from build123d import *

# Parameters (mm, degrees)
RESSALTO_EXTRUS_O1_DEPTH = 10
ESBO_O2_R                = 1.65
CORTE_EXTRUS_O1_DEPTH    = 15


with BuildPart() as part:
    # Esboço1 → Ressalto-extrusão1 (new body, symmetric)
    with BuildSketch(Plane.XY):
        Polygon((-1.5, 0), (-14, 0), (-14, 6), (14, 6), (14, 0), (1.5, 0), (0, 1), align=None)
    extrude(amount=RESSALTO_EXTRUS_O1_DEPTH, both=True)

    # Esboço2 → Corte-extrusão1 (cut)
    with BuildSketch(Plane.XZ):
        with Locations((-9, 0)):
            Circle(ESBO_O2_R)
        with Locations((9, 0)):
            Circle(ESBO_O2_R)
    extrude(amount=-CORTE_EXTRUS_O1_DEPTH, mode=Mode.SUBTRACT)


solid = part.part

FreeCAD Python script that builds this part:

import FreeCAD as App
import Part
import Sketcher

V = App.Vector
Q = App.Units.Quantity

doc = App.newDocument("Part")
body = doc.addObject("PartDesign::Body", "Body")

sketch1 = body.newObject("Sketcher::SketchObject", "Sketch")
sketch1.AttachmentSupport = (doc.getObject("XY_Plane"), [""])
sketch1.MapMode = "FlatFace"
sketch1.addGeometry([
    Part.LineSegment(V(-14, 0, 0), V(-1.5, 0, 0)),
    Part.LineSegment(V(-1.5, 0, 0), V(0, 1, 0)),
    Part.LineSegment(V(0, 1, 0), V(1.5, 0, 0)),
    Part.LineSegment(V(1.5, 0, 0), V(14, 0, 0)),
    Part.LineSegment(V(14, 0, 0), V(14, 6, 0)),
    Part.LineSegment(V(14, 6, 0), V(-14, 6, 0)),
    Part.LineSegment(V(-14, 6, 0), V(-14, 0, 0)),
], False)
sketch1.addConstraint([
    Sketcher.Constraint("Coincident", 0, 2, 1, 1),
    Sketcher.Constraint("Coincident", 1, 2, 2, 1),
    Sketcher.Constraint("Coincident", 2, 2, 3, 1),
    Sketcher.Constraint("Coincident", 3, 2, 4, 1),
    Sketcher.Constraint("Coincident", 4, 2, 5, 1),
    Sketcher.Constraint("Coincident", 5, 2, 6, 1),
    Sketcher.Constraint("Coincident", 6, 2, 0, 1),
    Sketcher.Constraint("Horizontal", 0),
    Sketcher.Constraint("Horizontal", 3),
    Sketcher.Constraint("Vertical", 4),
    Sketcher.Constraint("Horizontal", 5),
    Sketcher.Constraint("Vertical", 6),
    Sketcher.Constraint("Symmetric", 0, 2, 2, 2, -1, 1),
    Sketcher.Constraint("Symmetric", 3, 2, 6, 2, -2),
    Sketcher.Constraint("PointOnObject", 1, 2, -2),
    Sketcher.Constraint("DistanceX", 5, 2, 5, 1, Q("28 mm")),
    Sketcher.Constraint("DistanceY", 4, 1, 4, 2, Q("6 mm")),
    Sketcher.Constraint("DistanceX", 0, 1, 0, 2, Q("12.5 mm")),
    Sketcher.Constraint("DistanceY", -1, 1, 1, 2, Q("1 mm")),
])
pad1 = body.newObject("PartDesign::Pad", "Pad")
pad1.Profile = sketch1
pad1.Length = 20
pad1.Midplane = True

sketch2 = body.newObject("Sketcher::SketchObject", "Sketch001")
sketch2.AttachmentSupport = (doc.getObject("XZ_Plane"), [""])
sketch2.MapMode = "FlatFace"
sketch2.addGeometry([
    Part.Circle(V(-9, 0, 0), V(0, 0, 1), 1.6),
    Part.Circle(V(9, 0, 0), V(0, 0, 1), 1.6),
], False)
sketch2.addConstraint([
    Sketcher.Constraint("Equal", 0, 1),
    Sketcher.Constraint("Symmetric", 0, 3, 1, 3, -1, 1),
    Sketcher.Constraint("PointOnObject", 0, 3, -1),
    Sketcher.Constraint("Diameter", 0, Q("3.3 mm")),
    Sketcher.Constraint("DistanceX", 0, 3, -1, 1, Q("9 mm")),
])
pocket1 = body.newObject("PartDesign::Pocket", "Pocket")
pocket1.Profile = sketch2
pocket1.Length = 15

doc.recompute()
